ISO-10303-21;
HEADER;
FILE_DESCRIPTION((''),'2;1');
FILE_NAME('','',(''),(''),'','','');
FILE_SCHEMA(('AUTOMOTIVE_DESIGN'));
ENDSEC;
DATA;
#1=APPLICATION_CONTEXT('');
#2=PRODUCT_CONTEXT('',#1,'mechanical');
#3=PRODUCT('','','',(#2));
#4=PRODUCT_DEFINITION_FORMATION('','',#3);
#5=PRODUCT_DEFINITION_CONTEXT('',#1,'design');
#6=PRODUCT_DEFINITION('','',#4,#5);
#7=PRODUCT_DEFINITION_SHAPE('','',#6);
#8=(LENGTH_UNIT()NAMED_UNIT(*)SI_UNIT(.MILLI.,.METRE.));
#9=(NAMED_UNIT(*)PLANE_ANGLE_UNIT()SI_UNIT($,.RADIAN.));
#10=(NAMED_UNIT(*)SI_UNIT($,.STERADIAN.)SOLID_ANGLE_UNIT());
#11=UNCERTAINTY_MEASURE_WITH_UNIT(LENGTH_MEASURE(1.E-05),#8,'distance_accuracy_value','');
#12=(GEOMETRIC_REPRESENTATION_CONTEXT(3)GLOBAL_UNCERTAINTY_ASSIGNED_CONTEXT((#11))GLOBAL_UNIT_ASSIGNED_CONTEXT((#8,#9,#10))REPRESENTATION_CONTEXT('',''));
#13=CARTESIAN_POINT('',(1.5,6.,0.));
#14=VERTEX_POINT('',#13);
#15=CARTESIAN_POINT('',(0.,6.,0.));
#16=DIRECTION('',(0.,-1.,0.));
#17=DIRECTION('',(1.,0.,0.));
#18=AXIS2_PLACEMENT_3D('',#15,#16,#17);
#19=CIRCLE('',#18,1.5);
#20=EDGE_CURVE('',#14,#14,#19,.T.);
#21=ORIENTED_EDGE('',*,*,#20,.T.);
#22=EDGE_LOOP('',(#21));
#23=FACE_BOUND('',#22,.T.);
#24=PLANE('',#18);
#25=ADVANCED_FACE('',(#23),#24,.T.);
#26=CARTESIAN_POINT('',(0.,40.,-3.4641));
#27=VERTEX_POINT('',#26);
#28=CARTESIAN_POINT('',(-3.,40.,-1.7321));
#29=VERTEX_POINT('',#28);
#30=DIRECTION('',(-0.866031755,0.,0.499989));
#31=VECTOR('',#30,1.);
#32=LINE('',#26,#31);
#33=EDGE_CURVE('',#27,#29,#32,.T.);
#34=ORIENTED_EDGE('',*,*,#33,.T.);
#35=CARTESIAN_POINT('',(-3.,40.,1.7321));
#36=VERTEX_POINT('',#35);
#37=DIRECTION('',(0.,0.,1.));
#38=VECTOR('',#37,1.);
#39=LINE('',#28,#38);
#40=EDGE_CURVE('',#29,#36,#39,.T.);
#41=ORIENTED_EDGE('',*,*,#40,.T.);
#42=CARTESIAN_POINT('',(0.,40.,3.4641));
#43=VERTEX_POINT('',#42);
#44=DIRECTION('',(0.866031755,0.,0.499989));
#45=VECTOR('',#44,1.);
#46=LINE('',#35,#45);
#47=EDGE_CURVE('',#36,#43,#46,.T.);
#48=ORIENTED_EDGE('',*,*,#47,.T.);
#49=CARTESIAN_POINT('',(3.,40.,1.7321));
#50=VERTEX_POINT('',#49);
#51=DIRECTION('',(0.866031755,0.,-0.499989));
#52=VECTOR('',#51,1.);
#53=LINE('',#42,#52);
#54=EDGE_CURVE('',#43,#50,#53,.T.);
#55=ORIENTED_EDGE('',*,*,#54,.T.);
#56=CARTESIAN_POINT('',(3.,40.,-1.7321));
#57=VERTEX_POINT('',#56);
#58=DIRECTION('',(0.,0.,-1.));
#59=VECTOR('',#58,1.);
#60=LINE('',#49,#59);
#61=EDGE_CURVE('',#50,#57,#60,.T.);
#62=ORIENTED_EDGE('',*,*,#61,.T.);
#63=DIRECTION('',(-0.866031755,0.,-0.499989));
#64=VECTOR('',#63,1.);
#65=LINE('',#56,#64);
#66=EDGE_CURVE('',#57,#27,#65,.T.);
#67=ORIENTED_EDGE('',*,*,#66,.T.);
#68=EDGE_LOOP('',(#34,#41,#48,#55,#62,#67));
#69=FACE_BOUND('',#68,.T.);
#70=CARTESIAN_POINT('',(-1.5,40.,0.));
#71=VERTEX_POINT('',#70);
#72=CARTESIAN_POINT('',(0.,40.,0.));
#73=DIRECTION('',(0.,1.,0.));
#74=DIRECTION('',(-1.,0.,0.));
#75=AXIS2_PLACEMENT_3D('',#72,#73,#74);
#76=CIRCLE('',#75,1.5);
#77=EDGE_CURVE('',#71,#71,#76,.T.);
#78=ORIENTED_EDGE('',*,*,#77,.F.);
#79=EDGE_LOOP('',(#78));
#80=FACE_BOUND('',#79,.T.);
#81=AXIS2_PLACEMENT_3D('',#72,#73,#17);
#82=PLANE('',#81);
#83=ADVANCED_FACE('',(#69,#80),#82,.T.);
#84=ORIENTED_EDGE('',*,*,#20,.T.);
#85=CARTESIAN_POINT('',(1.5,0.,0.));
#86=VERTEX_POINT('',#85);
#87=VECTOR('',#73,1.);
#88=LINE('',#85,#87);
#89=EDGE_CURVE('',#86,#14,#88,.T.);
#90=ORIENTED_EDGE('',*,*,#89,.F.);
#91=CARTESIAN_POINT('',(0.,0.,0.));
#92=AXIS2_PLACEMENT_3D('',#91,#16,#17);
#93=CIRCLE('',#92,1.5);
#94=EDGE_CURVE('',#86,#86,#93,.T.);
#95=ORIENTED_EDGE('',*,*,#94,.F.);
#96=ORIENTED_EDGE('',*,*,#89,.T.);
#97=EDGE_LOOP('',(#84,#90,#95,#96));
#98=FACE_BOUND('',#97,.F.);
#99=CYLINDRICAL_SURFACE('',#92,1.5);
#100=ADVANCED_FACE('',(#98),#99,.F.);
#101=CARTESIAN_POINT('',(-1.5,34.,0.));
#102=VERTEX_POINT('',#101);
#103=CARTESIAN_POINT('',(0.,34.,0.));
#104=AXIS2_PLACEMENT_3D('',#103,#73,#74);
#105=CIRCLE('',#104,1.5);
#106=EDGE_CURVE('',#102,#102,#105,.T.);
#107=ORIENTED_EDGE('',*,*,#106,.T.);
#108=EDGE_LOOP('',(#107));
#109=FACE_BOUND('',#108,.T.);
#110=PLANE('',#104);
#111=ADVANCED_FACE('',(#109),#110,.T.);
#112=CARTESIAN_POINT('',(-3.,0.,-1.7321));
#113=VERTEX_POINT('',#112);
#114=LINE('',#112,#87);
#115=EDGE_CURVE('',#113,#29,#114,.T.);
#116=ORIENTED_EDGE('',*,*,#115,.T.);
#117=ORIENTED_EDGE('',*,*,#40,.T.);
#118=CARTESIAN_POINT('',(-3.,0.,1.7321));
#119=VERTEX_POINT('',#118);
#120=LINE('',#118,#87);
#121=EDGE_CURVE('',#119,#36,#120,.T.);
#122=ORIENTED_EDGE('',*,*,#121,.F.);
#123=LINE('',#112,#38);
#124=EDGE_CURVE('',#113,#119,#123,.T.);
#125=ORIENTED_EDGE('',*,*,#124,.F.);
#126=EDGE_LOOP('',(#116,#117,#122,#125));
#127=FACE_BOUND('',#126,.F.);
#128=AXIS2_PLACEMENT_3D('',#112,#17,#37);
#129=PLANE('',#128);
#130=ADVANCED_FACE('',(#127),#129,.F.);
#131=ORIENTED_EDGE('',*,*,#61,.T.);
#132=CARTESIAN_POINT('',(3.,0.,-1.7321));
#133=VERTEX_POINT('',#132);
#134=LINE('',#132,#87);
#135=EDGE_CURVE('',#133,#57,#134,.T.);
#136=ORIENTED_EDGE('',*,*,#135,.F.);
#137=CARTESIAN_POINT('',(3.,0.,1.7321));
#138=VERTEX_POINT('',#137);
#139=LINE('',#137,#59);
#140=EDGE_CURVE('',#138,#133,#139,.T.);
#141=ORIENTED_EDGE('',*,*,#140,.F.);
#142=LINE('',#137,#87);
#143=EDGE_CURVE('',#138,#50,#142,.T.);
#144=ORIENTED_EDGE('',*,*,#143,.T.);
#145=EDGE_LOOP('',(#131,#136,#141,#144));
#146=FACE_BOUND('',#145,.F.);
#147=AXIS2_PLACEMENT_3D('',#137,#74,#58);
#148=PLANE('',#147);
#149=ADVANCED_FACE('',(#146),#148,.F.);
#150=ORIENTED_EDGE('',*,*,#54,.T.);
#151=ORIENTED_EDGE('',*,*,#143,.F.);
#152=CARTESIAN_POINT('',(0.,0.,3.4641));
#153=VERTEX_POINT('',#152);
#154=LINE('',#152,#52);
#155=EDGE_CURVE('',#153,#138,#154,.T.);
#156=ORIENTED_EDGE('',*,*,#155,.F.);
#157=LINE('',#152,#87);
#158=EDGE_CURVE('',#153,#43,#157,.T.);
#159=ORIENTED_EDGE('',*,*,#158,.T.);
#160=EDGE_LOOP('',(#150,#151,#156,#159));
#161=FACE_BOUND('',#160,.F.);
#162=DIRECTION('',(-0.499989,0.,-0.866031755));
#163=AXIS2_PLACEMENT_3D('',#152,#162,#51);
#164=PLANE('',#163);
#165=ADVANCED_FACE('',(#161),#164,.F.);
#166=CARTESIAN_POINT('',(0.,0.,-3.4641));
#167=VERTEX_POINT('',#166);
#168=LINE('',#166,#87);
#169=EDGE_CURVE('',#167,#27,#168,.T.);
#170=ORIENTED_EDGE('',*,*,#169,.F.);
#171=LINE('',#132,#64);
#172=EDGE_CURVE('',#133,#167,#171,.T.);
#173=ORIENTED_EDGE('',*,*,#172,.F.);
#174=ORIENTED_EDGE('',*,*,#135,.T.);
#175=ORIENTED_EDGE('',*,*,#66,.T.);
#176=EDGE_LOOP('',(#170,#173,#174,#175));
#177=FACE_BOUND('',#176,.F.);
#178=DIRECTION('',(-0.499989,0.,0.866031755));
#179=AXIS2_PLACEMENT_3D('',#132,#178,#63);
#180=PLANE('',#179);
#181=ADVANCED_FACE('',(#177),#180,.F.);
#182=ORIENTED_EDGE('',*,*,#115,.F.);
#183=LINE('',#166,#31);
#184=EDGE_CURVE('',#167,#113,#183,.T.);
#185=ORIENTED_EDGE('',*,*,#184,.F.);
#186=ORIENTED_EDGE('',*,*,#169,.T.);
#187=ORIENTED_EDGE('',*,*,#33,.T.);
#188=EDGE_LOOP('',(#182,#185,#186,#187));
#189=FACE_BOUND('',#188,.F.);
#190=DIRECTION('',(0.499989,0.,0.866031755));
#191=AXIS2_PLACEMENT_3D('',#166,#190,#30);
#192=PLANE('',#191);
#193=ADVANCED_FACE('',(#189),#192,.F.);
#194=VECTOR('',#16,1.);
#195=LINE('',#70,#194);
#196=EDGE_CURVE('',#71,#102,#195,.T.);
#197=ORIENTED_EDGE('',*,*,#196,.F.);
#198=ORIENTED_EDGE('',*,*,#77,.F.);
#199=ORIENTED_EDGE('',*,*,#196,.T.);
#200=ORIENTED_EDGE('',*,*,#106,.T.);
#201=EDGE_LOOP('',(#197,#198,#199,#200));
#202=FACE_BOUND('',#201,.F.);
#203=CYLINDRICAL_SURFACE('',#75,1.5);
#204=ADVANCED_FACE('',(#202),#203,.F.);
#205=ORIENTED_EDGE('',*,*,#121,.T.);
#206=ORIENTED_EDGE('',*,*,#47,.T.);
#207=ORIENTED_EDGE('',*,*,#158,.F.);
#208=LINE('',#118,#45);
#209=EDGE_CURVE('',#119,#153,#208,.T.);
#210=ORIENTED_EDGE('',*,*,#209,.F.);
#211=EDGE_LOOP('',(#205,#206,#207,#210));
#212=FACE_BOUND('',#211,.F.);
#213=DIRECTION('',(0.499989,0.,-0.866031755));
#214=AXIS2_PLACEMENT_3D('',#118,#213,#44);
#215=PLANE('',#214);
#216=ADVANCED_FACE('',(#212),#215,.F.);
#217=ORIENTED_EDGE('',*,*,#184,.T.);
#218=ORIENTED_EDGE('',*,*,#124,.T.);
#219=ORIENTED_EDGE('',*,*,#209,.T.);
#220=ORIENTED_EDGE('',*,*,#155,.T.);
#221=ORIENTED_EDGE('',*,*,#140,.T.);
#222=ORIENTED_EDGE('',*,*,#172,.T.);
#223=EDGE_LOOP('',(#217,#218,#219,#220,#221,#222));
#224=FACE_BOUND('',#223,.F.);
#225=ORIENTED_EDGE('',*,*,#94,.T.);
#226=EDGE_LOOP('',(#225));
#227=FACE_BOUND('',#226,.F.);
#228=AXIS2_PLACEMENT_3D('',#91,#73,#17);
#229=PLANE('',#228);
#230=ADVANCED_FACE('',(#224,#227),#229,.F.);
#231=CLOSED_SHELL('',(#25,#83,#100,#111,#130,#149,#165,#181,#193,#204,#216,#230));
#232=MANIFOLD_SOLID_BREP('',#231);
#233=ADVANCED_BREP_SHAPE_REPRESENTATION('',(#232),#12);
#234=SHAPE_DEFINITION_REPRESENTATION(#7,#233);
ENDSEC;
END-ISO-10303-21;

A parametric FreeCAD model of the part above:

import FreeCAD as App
import Part
import Sketcher
Q = App.Units.Quantity

doc = App.newDocument("Part")
body = doc.addObject("PartDesign::Body", "Body")

sketch1 = body.newObject("Sketcher::SketchObject", "Sketch")
sketch1.AttachmentSupport = (doc.getObject("XZ_Plane"), [""])
sketch1.MapMode = "FlatFace"
sketch1.addGeometry([
    Part.LineSegment(App.Vector(3, 1.7321, 0), App.Vector(3, -1.7321, 0)),
    Part.LineSegment(App.Vector(3, -1.7321, 0), App.Vector(0, -3.4641, 0)),
    Part.LineSegment(App.Vector(0, -3.4641, 0), App.Vector(-3, -1.7321, 0)),
    Part.LineSegment(App.Vector(-3, -1.7321, 0), App.Vector(-3, 1.7321, 0)),
    Part.LineSegment(App.Vector(-3, 1.7321, 0), App.Vector(0, 3.4641, 0)),
    Part.LineSegment(App.Vector(0, 3.4641, 0), App.Vector(3, 1.7321, 0)),
], False)
sketch1.addConstraint([
    Sketcher.Constraint("Coincident", 0, 2, 1, 1),
    Sketcher.Constraint("Coincident", 1, 2, 2, 1),
    Sketcher.Constraint("Coincident", 2, 2, 3, 1),
    Sketcher.Constraint("Coincident", 3, 2, 4, 1),
    Sketcher.Constraint("Coincident", 4, 2, 5, 1),
    Sketcher.Constraint("Coincident", 5, 2, 0, 1),
    Sketcher.Constraint("Vertical", 0),
    Sketcher.Constraint("Vertical", 3),
    Sketcher.Constraint("Symmetric", 0, 2, 3, 2, -1, 1),
    Sketcher.Constraint("Symmetric", 1, 2, 4, 2, -1, 1),
    Sketcher.Constraint("PointOnObject", 1, 2, -2),
    Sketcher.Constraint("Parallel", 2, 5),
    Sketcher.Constraint("Horizontal", 0, 2, 2, 2),
    Sketcher.Constraint("DistanceX", -1, 1, 0, 2, Q("3 mm")),
    Sketcher.Constraint("Angle", 1, Q("-150.0007 deg")),
    Sketcher.Constraint("DistanceY", 0, 2, 0, 1, Q("3.4642 mm")),
])
pad1 = body.newObject("PartDesign::Pad", "Pad")
pad1.Profile = sketch1
pad1.Length = 40
pad1.Reversed = True

sketch2 = body.newObject("Sketcher::SketchObject", "Sketch001")
sketch2.AttachmentSupport = (doc.getObject("XZ_Plane"), [""])
sketch2.MapMode = "FlatFace"
sketch2.AttachmentOffset = App.Placement(App.Vector(0, 0, -40), App.Rotation())
sketch2.addGeometry(Part.Circle(App.Vector(0, 0, 0), App.Vector(0, 0, 1), 1.5), False)
sketch2.addConstraint([
    Sketcher.Constraint("Coincident", 0, 3, -1, 1),
    Sketcher.Constraint("Diameter", 0, Q("3 mm")),
])
pocket1 = body.newObject("PartDesign::Pocket", "Pocket")
pocket1.Profile = sketch2
pocket1.Length = 6
pocket1.Reversed = True

sketch3 = body.newObject("Sketcher::SketchObject", "Sketch002")
sketch3.AttachmentSupport = (doc.getObject("XZ_Plane"), [""])
sketch3.MapMode = "FlatFace"
sketch3.addGeometry(Part.Circle(App.Vector(0, 0, 0), App.Vector(0, 0, 1), 1.5), False)
sketch3.addConstraint([
    Sketcher.Constraint("Coincident", 0, 3, -1, 1),
    Sketcher.Constraint("Diameter", 0, Q("3 mm")),
])
pocket2 = body.newObject("PartDesign::Pocket", "Pocket001")
pocket2.Profile = sketch3
pocket2.Length = 6

doc.recompute()
